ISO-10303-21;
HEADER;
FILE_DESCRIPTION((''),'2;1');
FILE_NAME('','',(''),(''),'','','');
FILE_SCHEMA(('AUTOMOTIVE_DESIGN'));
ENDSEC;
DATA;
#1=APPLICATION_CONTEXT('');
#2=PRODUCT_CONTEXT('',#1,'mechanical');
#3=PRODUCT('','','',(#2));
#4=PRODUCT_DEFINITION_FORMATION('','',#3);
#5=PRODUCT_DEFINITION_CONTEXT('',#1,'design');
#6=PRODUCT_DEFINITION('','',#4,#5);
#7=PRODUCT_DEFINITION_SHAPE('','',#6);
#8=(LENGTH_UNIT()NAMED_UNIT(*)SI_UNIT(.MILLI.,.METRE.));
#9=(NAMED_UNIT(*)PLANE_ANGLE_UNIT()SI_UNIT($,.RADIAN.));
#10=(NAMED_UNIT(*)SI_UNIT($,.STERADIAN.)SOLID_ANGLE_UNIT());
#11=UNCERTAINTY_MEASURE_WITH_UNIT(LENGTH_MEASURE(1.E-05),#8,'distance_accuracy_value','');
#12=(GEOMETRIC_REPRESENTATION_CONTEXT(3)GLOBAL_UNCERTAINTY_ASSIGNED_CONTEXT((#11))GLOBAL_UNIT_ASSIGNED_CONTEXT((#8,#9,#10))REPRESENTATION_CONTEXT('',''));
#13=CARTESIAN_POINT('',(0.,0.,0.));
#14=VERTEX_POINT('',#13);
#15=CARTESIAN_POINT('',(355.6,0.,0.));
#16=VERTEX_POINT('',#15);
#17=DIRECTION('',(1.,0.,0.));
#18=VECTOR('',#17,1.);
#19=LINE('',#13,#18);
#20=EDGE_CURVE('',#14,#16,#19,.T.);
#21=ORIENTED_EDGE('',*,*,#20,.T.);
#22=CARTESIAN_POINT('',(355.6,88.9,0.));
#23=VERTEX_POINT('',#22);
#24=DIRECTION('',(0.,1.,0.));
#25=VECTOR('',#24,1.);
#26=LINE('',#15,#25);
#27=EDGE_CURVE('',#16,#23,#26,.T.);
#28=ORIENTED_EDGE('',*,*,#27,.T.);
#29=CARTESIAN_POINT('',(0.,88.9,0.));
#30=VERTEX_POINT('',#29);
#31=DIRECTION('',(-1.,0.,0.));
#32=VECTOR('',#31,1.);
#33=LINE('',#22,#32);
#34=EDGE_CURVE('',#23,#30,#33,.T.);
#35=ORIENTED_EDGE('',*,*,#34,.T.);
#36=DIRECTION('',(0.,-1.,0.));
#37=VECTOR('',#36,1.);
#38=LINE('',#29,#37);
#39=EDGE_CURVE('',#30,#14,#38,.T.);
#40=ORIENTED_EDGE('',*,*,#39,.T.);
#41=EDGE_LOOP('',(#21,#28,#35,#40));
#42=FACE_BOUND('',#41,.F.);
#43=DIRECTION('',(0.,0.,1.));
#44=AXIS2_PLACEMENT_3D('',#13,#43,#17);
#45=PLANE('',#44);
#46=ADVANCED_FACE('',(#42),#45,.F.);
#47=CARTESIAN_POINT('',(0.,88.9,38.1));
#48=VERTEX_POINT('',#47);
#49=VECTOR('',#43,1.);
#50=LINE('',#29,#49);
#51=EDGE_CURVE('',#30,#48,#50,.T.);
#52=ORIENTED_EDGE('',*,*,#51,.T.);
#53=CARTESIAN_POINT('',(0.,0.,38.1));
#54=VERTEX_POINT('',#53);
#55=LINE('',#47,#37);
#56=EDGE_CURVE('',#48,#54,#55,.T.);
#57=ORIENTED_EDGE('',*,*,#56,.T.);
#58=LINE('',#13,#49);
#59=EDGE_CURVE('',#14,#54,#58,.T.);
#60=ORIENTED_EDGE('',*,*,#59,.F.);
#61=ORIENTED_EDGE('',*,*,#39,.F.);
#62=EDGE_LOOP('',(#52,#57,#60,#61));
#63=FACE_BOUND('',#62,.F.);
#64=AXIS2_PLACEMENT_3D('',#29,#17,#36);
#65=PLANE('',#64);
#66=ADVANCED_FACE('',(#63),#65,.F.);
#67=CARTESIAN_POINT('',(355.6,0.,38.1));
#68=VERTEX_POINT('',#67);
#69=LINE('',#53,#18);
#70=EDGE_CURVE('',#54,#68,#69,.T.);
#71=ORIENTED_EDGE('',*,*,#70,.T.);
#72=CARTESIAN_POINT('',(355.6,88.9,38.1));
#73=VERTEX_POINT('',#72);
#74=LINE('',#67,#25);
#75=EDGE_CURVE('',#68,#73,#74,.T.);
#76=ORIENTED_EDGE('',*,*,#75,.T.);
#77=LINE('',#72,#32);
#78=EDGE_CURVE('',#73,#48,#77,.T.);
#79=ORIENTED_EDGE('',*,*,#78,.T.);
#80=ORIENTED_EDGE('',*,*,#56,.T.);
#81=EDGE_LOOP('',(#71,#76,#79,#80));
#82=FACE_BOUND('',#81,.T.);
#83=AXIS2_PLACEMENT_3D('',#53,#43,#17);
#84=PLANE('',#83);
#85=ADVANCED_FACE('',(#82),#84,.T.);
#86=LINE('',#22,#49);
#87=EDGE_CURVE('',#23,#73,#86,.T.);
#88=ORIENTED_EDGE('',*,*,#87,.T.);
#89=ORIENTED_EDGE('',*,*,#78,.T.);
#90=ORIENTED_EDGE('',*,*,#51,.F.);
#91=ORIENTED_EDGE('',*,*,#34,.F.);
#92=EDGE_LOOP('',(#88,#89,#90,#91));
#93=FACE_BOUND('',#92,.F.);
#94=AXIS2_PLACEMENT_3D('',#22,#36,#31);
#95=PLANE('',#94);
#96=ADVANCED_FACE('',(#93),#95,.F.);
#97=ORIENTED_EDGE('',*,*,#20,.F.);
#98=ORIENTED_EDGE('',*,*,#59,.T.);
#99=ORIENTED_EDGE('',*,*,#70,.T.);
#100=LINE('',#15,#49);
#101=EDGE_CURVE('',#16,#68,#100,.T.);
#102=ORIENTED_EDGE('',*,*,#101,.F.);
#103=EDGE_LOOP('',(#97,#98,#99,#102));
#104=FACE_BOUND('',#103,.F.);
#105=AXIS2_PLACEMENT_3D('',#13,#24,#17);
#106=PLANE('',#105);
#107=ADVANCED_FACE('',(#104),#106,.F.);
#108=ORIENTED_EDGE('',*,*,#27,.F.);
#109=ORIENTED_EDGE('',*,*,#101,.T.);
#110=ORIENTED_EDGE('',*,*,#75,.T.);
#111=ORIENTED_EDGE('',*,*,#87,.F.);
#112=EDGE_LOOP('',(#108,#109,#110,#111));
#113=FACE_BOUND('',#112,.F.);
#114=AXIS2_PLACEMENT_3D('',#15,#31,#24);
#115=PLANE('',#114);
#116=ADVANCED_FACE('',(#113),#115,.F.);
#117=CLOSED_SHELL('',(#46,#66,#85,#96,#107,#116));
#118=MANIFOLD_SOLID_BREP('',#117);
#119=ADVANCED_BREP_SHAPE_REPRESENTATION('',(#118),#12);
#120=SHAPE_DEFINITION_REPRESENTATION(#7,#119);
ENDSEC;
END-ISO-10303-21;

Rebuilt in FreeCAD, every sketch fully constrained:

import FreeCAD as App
import Part
import Sketcher
from FreeCAD import Vector
Q = App.Units.Quantity

doc = App.newDocument("Part")
body = doc.addObject("PartDesign::Body", "Body")

# Sketch on XY plane
sketch1 = body.newObject("Sketcher::SketchObject", "Sketch")
sketch1.AttachmentSupport = (doc.getObject("XY_Plane"), [""])
sketch1.MapMode = "FlatFace"
sketch1.addGeometry(Part.LineSegment(Vector(0, 89, 0), Vector(0, 0, 0)), False)
sketch1.addGeometry(Part.LineSegment(Vector(0, 0, 0), Vector(356, 0, 0)), False)
sketch1.addGeometry(Part.LineSegment(Vector(356, 0, 0), Vector(356, 89, 0)), False)
sketch1.addGeometry(Part.LineSegment(Vector(356, 89, 0), Vector(0, 89, 0)), False)
sketch1.addConstraint(Sketcher.Constraint("Coincident", 0, 2, 1, 1))
sketch1.addConstraint(Sketcher.Constraint("Coincident", 1, 2, 2, 1))
sketch1.addConstraint(Sketcher.Constraint("Coincident", 2, 2, 3, 1))
sketch1.addConstraint(Sketcher.Constraint("Coincident", 3, 2, 0, 1))
sketch1.addConstraint(Sketcher.Constraint("Vertical", 0))
sketch1.addConstraint(Sketcher.Constraint("Horizontal", 1))
sketch1.addConstraint(Sketcher.Constraint("Vertical", 2))
sketch1.addConstraint(Sketcher.Constraint("Horizontal", 3))
sketch1.addConstraint(Sketcher.Constraint("Coincident", 0, 2, -1, 1))
sketch1.addConstraint(Sketcher.Constraint("DistanceX", 1, 1, 1, 2, Q("14 in")))
sketch1.addConstraint(Sketcher.Constraint("DistanceY", 0, 2, 0, 1, Q("3.5 in")))
pad1 = body.newObject("PartDesign::Pad", "Pad")
pad1.Profile = sketch1
pad1.Length = Q("1.5 in")

doc.recompute()
